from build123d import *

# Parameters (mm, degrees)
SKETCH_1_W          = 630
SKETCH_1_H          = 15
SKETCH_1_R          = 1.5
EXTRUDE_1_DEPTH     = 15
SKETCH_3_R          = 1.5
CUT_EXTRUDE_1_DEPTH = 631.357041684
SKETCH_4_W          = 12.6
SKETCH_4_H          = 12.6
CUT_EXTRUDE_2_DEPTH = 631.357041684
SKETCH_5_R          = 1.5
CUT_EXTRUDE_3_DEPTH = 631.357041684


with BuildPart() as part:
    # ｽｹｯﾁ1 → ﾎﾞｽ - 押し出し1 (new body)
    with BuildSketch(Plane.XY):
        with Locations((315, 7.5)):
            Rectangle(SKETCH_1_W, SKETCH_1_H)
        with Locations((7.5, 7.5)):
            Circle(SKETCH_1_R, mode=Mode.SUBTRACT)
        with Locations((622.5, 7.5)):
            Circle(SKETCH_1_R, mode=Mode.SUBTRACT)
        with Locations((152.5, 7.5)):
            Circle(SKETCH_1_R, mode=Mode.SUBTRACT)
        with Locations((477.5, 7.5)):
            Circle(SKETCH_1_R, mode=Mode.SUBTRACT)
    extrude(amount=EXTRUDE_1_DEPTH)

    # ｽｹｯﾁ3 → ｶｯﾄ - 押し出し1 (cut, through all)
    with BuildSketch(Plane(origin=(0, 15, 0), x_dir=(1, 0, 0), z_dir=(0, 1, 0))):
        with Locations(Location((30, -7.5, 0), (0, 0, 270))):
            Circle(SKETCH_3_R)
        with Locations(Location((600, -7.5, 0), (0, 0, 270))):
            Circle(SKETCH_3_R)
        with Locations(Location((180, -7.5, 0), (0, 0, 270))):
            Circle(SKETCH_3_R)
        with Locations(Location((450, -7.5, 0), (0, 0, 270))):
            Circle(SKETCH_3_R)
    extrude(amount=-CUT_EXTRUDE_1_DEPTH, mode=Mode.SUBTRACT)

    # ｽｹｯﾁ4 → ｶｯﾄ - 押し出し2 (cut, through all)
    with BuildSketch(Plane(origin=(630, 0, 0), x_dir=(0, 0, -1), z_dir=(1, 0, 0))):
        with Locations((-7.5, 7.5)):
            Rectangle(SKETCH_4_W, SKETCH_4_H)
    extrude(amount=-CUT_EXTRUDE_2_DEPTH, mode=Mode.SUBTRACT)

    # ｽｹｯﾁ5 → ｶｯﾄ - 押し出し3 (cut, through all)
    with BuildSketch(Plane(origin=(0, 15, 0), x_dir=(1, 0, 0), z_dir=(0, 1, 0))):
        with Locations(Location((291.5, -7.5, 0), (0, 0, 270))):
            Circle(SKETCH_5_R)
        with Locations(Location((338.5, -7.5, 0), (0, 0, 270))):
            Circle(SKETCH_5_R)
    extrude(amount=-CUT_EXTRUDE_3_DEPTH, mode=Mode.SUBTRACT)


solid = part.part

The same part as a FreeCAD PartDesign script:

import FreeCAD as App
import Part
import Sketcher

V = App.Vector
Q = App.Units.Quantity

doc = App.newDocument("Part")
body = doc.addObject("PartDesign::Body", "Body")

# Sketch on XY plane
sketch1 = doc.addObject("Sketcher::SketchObject", "Sketch")
body.addObject(sketch1)
sketch1.AttachmentSupport = (doc.XY_Plane, [""])
sketch1.MapMode = "FlatFace"
sketch1.addGeometry([
    Part.LineSegment(V(0, 15, 0), V(0, 0, 0)),  # 0
    Part.LineSegment(V(0, 0, 0), V(630, 0, 0)),  # 1
    Part.LineSegment(V(630, 0, 0), V(630, 15, 0)),  # 2
    Part.LineSegment(V(630, 15, 0), V(0, 15, 0)),  # 3
    Part.Circle(V(7.5, 7.5, 0), V(0, 0, 1), 1.5),  # 4
    Part.Circle(V(152.5, 7.5, 0), V(0, 0, 1), 1.5),  # 5
    Part.Circle(V(477.5, 7.5, 0), V(0, 0, 1), 1.5),  # 6
    Part.Circle(V(622.5, 7.5, 0), V(0, 0, 1), 1.5),  # 7
], False)
sketch1.addConstraint([
    Sketcher.Constraint("Coincident", 0, 2, 1, 1),
    Sketcher.Constraint("Coincident", 1, 2, 2, 1),
    Sketcher.Constraint("Coincident", 2, 2, 3, 1),
    Sketcher.Constraint("Coincident", 3, 2, 0, 1),
    Sketcher.Constraint("Vertical", 0),
    Sketcher.Constraint("Horizontal", 1),
    Sketcher.Constraint("Vertical", 2),
    Sketcher.Constraint("Horizontal", 3),
    Sketcher.Constraint("Coincident", 0, 2, -1, 1),
    Sketcher.Constraint("Equal", 4, 5),
    Sketcher.Constraint("Equal", 5, 6),
    Sketcher.Constraint("Equal", 6, 7),
    Sketcher.Constraint("Horizontal", 4, 3, 5, 3),
    Sketcher.Constraint("Horizontal", 5, 3, 6, 3),
    Sketcher.Constraint("Horizontal", 6, 3, 7, 3),
    Sketcher.Constraint("Diameter", 4, Q("3 mm")),
    Sketcher.Constraint("DistanceX", 1, 1, 1, 2, Q("630 mm")),
    Sketcher.Constraint("DistanceY", 0, 2, 0, 1, Q("15 mm")),
    Sketcher.Constraint("DistanceX", 4, 3, 5, 3, Q("145 mm")),
    Sketcher.Constraint("DistanceX", 5, 3, 6, 3, Q("325 mm")),
    Sketcher.Constraint("DistanceX", 6, 3, 7, 3, Q("145 mm")),
    Sketcher.Constraint("DistanceX", -1, 1, 4, 3, Q("7.5 mm")),
    Sketcher.Constraint("DistanceY", -1, 1, 4, 3, Q("7.5 mm")),
])
pad1 = doc.addObject("PartDesign::Pad", "Pad")
body.addObject(pad1)
pad1.Profile = sketch1
pad1.Length = 15

# Sketch on XZ plane
sketch2 = doc.addObject("Sketcher::SketchObject", "Sketch001")
body.addObject(sketch2)
sketch2.AttachmentSupport = (doc.XZ_Plane, [""])
sketch2.MapMode = "FlatFace"
sketch2.AttachmentOffset = App.Placement(V(0, 0, -15), App.Rotation())
sketch2.addGeometry([
    Part.Circle(V(30, 7.5, 0), V(0, 0, 1), 1.5),
    Part.Circle(V(600, 7.5, 0), V(0, 0, 1), 1.5),
    Part.Circle(V(180, 7.5, 0), V(0, 0, 1), 1.5),
    Part.Circle(V(450, 7.5, 0), V(0, 0, 1), 1.5),
], False)
sketch2.addConstraint([
    Sketcher.Constraint("Equal", 0, 1),
    Sketcher.Constraint("Equal", 1, 2),
    Sketcher.Constraint("Equal", 2, 3),
    Sketcher.Constraint("Horizontal", 0, 3, 1, 3),
    Sketcher.Constraint("Horizontal", 1, 3, 2, 3),
    Sketcher.Constraint("Horizontal", 2, 3, 3, 3),
    Sketcher.Constraint("Diameter", 0, Q("3 mm")),
    Sketcher.Constraint("DistanceX", -1, 1, 0, 3, Q("30 mm")),
    Sketcher.Constraint("DistanceX", -1, 1, 1, 3, Q("600 mm")),
    Sketcher.Constraint("DistanceX", -1, 1, 2, 3, Q("180 mm")),
    Sketcher.Constraint("DistanceX", -1, 1, 3, 3, Q("450 mm")),
    Sketcher.Constraint("DistanceY", -1, 1, 0, 3, Q("7.5 mm")),
])
pocket1 = doc.addObject("PartDesign::Pocket", "Pocket")
body.addObject(pocket1)
pocket1.Profile = sketch2
pocket1.Type = "ThroughAll"
pocket1.Reversed = True

# Sketch on YZ plane
sketch3 = doc.addObject("Sketcher::SketchObject", "Sketch002")
body.addObject(sketch3)
sketch3.AttachmentSupport = (doc.YZ_Plane, [""])
sketch3.MapMode = "FlatFace"
sketch3.AttachmentOffset = App.Placement(V(0, 0, 630), App.Rotation())
sketch3.addGeometry([
    Part.LineSegment(V(14, 14, 0), V(1, 14, 0)),
    Part.LineSegment(V(1, 14, 0), V(1, 1, 0)),
    Part.LineSegment(V(1, 1, 0), V(14, 1, 0)),
    Part.LineSegment(V(14, 1, 0), V(14, 14, 0)),
], False)
sketch3.addConstraint([
    Sketcher.Constraint("Coincident", 0, 2, 1, 1),
    Sketcher.Constraint("Coincident", 1, 2, 2, 1),
    Sketcher.Constraint("Coincident", 2, 2, 3, 1),
    Sketcher.Constraint("Coincident", 3, 2, 0, 1),
    Sketcher.Constraint("Horizontal", 0),
    Sketcher.Constraint("Vertical", 1),
    Sketcher.Constraint("Horizontal", 2),
    Sketcher.Constraint("Vertical", 3),
    Sketcher.Constraint("Equal", 2, 1),
    Sketcher.Constraint("DistanceX", 0, 2, 0, 1, Q("12.6 mm")),
    Sketcher.Constraint("DistanceX", -1, 1, 0, 2, Q("1.2 mm")),
    Sketcher.Constraint("DistanceY", -1, 1, 0, 2, Q("13.8 mm")),
])
pocket2 = doc.addObject("PartDesign::Pocket", "Pocket001")
body.addObject(pocket2)
pocket2.Profile = sketch3
pocket2.Type = "ThroughAll"

# Sketch on XZ plane
sketch4 = doc.addObject("Sketcher::SketchObject", "Sketch003")
body.addObject(sketch4)
sketch4.AttachmentSupport = (doc.XZ_Plane, [""])
sketch4.MapMode = "FlatFace"
sketch4.AttachmentOffset = App.Placement(V(0, 0, -15), App.Rotation())
sketch4.addGeometry([
    Part.Circle(V(291.5, 7.5, 0), V(0, 0, 1), 1.5),
    Part.Circle(V(338.5, 7.5, 0), V(0, 0, 1), 1.5),
], False)
sketch4.addConstraint([
    Sketcher.Constraint("Equal", 0, 1),
    Sketcher.Constraint("Horizontal", 0, 3, 1, 3),
    Sketcher.Constraint("Diameter", 0, Q("3 mm")),
    Sketcher.Constraint("DistanceX", 0, 3, 1, 3, Q("47 mm")),
    Sketcher.Constraint("DistanceX", -1, 1, 0, 3, Q("291.5 mm")),
    Sketcher.Constraint("DistanceY", -1, 1, 0, 3, Q("7.5 mm")),
])
pocket3 = doc.addObject("PartDesign::Pocket", "Pocket002")
body.addObject(pocket3)
pocket3.Profile = sketch4
pocket3.Type = "ThroughAll"
pocket3.Reversed = True

doc.recompute()
